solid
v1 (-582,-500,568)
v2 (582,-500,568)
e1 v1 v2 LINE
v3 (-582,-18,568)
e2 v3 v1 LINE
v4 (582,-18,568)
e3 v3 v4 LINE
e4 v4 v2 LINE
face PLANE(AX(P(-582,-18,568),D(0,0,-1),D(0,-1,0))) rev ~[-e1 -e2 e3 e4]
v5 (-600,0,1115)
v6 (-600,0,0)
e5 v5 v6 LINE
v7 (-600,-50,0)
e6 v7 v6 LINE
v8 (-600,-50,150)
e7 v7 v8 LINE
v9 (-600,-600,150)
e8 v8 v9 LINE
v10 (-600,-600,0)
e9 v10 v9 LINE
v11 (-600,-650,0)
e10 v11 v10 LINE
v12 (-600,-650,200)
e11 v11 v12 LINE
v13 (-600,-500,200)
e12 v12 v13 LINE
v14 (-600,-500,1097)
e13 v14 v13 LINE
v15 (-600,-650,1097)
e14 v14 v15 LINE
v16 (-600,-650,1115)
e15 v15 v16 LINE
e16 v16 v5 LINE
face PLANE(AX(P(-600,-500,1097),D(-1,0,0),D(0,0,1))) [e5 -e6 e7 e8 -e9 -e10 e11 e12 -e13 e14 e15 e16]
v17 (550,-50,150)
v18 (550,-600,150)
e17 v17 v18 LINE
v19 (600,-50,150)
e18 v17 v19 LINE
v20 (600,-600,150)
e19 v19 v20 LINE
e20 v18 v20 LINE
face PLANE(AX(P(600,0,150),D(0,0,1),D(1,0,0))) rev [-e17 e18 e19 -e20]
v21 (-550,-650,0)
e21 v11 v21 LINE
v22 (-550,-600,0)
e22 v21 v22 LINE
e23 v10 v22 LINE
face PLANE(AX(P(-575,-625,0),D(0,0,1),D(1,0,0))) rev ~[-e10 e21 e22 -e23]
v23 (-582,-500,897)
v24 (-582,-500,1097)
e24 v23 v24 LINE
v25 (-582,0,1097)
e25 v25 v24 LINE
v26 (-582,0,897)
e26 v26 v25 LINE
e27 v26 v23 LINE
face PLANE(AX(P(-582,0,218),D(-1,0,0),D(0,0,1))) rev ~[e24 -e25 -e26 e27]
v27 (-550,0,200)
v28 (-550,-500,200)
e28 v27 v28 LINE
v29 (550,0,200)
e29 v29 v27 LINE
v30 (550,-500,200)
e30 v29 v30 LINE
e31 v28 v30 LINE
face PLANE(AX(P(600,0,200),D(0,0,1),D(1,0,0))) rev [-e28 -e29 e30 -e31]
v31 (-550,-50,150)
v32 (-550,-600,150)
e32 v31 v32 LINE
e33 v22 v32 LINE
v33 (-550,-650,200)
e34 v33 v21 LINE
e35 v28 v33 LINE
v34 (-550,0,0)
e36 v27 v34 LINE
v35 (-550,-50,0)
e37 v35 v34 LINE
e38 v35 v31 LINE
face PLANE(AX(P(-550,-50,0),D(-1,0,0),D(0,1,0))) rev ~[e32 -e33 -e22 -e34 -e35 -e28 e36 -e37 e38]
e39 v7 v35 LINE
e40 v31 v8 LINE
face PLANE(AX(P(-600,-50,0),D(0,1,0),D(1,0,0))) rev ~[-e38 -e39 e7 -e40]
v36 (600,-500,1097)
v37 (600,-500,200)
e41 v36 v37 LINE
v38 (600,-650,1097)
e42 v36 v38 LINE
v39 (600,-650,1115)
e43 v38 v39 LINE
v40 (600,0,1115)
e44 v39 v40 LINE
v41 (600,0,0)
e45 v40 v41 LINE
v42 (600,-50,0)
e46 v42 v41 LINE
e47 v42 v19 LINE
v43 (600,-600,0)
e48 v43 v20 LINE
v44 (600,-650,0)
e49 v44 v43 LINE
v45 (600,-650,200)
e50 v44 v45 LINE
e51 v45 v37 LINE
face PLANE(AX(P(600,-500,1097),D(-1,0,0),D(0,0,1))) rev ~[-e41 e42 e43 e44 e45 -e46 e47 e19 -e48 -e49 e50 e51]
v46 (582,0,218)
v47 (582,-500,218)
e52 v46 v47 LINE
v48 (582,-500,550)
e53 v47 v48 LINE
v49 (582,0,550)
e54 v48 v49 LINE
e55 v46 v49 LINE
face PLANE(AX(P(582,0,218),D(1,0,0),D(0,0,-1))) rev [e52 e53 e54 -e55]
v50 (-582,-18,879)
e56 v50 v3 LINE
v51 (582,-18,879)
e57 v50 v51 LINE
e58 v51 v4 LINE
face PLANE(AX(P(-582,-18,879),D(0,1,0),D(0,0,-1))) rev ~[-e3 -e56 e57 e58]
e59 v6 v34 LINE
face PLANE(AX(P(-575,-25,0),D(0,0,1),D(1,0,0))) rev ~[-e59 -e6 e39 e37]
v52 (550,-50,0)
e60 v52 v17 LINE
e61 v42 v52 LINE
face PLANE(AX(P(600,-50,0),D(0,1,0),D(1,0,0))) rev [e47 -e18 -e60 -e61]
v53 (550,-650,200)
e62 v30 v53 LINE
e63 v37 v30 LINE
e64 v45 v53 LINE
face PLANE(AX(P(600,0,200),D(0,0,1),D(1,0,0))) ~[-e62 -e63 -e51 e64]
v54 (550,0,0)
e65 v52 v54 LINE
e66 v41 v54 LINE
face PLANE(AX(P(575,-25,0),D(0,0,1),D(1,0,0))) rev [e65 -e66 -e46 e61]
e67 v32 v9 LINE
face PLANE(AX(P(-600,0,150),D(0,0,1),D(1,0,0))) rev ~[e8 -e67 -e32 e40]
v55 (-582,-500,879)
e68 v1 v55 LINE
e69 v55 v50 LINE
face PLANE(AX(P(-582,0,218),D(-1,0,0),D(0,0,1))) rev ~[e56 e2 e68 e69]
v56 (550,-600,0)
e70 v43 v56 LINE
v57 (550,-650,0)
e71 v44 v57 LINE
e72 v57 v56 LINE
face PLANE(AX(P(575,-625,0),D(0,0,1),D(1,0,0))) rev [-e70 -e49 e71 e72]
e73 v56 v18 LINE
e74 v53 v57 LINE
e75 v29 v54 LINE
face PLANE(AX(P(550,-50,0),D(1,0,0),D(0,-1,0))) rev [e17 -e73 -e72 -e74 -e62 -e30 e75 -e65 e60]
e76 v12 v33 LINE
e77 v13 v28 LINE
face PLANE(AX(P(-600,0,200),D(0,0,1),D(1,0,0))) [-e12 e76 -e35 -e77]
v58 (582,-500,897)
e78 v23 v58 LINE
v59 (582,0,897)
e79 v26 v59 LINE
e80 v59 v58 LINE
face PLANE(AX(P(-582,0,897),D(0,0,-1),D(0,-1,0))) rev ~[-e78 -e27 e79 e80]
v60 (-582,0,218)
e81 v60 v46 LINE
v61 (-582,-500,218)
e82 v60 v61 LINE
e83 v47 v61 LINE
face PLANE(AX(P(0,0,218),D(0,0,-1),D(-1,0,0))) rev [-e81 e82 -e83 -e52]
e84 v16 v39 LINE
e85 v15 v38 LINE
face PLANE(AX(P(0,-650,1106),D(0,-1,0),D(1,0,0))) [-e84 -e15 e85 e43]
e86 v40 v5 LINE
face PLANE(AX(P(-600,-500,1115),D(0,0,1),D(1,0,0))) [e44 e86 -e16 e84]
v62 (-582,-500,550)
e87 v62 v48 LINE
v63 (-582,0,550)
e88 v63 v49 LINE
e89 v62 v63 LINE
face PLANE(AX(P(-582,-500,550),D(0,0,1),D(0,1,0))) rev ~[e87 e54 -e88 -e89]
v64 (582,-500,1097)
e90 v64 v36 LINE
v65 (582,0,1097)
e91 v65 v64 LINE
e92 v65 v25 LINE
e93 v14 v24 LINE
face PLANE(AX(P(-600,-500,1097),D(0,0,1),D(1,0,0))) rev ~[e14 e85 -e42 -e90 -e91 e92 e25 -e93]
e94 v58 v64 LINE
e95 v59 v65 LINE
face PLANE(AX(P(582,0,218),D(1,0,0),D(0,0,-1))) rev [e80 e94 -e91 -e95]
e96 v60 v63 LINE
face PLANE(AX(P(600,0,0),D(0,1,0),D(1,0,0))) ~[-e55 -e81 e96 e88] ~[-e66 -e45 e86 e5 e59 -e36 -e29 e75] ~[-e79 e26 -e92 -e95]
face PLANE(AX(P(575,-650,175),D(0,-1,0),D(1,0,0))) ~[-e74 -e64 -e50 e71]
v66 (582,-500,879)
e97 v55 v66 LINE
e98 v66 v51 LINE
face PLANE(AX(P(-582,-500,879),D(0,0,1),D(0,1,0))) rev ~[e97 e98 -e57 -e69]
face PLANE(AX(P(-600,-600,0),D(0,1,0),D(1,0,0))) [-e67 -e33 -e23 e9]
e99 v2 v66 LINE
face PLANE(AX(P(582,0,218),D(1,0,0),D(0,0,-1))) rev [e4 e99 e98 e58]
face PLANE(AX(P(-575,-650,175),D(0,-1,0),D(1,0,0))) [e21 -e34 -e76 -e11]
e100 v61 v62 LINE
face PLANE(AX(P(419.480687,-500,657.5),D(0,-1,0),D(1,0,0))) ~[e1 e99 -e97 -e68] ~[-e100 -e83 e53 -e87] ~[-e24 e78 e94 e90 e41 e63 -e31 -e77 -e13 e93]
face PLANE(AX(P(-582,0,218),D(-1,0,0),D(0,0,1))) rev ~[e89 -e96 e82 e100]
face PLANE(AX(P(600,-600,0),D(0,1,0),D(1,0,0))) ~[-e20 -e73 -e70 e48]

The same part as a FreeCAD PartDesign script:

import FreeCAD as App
import Part
import Sketcher
from FreeCAD import Vector
Q = App.Units.Quantity

doc = App.newDocument("Part")
params = doc.addObject("Spreadsheet::Sheet", "Params")
for row, (alias, value) in enumerate([
    ("sketch1_width", "600 mm"),
    ("sketch1_width2", "582 mm"),
    ("sketch1_height", "915 mm"),
    ("sketch1_height2", "18 mm"),
    ("pad1_length", "500 mm"),
    ("sketch2_width", "50 mm"),
    ("pad2_length", "650 mm"),
    ("sketch3_width", "50 mm"),
    ("pad3_length", "200 mm"),
    ("sketch4_width", "1200 mm"),
    ("sketch4_height", "18 mm"),
    ("pad4_length", "150 mm"),
    ("sketch5_width", "500 mm"),
    ("sketch5_width2", "482 mm"),
    ("sketch5_height", "18 mm"),
    ("sketch5_height2", "311 mm"),
], start=1):
    params.set(f"A{row}", alias)
    params.set(f"B{row}", "=" + value)
    params.setAlias(f"B{row}", alias)

body = doc.addObject("PartDesign::Body", "Body")

sketch1 = body.newObject("Sketcher::SketchObject", "Sketch")
sketch1.AttachmentSupport = (doc.getObject("XZ_Plane"), [""])
sketch1.MapMode = "FlatFace"
sketch1.addGeometry([
    Part.LineSegment(Vector(0, 1115, 0), Vector(-600, 1115, 0)),
    Part.LineSegment(Vector(-600, 1115, 0), Vector(-600, 200, 0)),
    Part.LineSegment(Vector(-600, 200, 0), Vector(0, 200, 0)),
    Part.LineSegment(Vector(0, 200, 0), Vector(0, 218, 0)),
    Part.LineSegment(Vector(0, 218, 0), Vector(-582, 218, 0)),
    Part.LineSegment(Vector(-582, 218, 0), Vector(-582, 1097, 0)),
    Part.LineSegment(Vector(-582, 1097, 0), Vector(0, 1097, 0)),
    Part.LineSegment(Vector(0, 1097, 0), Vector(0, 1115, 0)),
], False)
sketch1.addConstraint([
    Sketcher.Constraint("Coincident", 0, 2, 1, 1),
    Sketcher.Constraint("Coincident", 1, 2, 2, 1),
    Sketcher.Constraint("Coincident", 2, 2, 3, 1),
    Sketcher.Constraint("Coincident", 3, 2, 4, 1),
    Sketcher.Constraint("Coincident", 4, 2, 5, 1),
    Sketcher.Constraint("Coincident", 5, 2, 6, 1),
    Sketcher.Constraint("Coincident", 6, 2, 7, 1),
    Sketcher.Constraint("Coincident", 7, 2, 0, 1),
    Sketcher.Constraint("Horizontal", 0),
    Sketcher.Constraint("Vertical", 1),
    Sketcher.Constraint("Horizontal", 2),
    Sketcher.Constraint("Vertical", 3),
    Sketcher.Constraint("Horizontal", 4),
    Sketcher.Constraint("Vertical", 5),
    Sketcher.Constraint("Horizontal", 6),
    Sketcher.Constraint("Vertical", 7),
    Sketcher.Constraint("PointOnObject", 2, 2, -2),
    Sketcher.Constraint("PointOnObject", 6, 2, -2),
    Sketcher.Constraint("Equal", 3, 7),
    Sketcher.Constraint("DistanceX", 0, 2, 0, 1, Q("600 mm")),
    Sketcher.Constraint("DistanceX", 4, 2, 4, 1, Q("582 mm")),
    Sketcher.Constraint("DistanceY", 1, 2, 1, 1, Q("915 mm")),
    Sketcher.Constraint("DistanceY", 3, 1, 3, 2, Q("18 mm")),
    Sketcher.Constraint("DistanceY", -1, 1, 0, 2, Q("1115 mm")),
])
sketch1.setExpression("Constraints[19]", "Params.sketch1_width")
sketch1.setExpression("Constraints[20]", "Params.sketch1_width2")
sketch1.setExpression("Constraints[21]", "Params.sketch1_height")
sketch1.setExpression("Constraints[22]", "Params.sketch1_height2")
pad1 = body.newObject("PartDesign::Pad", "Pad")
pad1.Profile = sketch1
pad1.setExpression("Length", "Params.pad1_length")

sketch2 = body.newObject("Sketcher::SketchObject", "Sketch001")
sketch2.AttachmentSupport = (doc.getObject("XZ_Plane"), [""])
sketch2.MapMode = "FlatFace"
sketch2.addGeometry([
    Part.LineSegment(Vector(-600, 200, 0), Vector(-600, 150, 0)),
    Part.LineSegment(Vector(-600, 150, 0), Vector(-550, 150, 0)),
    Part.LineSegment(Vector(-550, 150, 0), Vector(-550, 200, 0)),
    Part.LineSegment(Vector(-550, 200, 0), Vector(-600, 200, 0)),
], False)
sketch2.addConstraint([
    Sketcher.Constraint("Coincident", 0, 2, 1, 1),
    Sketcher.Constraint("Coincident", 1, 2, 2, 1),
    Sketcher.Constraint("Coincident", 2, 2, 3, 1),
    Sketcher.Constraint("Coincident", 3, 2, 0, 1),
    Sketcher.Constraint("Vertical", 0),
    Sketcher.Constraint("Horizontal", 1),
    Sketcher.Constraint("Vertical", 2),
    Sketcher.Constraint("Horizontal", 3),
    Sketcher.Constraint("Equal", 3, 0),
    Sketcher.Constraint("DistanceX", 1, 1, 1, 2, Q("50 mm")),
    Sketcher.Constraint("DistanceX", 0, 2, -1, 1, Q("600 mm")),
    Sketcher.Constraint("DistanceY", -1, 1, 0, 2, Q("150 mm")),
])
sketch2.setExpression("Constraints[9]", "Params.sketch2_width")
pad2 = body.newObject("PartDesign::Pad", "Pad001")
pad2.Profile = sketch2
pad2.setExpression("Length", "Params.pad2_length")

sketch3 = body.newObject("Sketcher::SketchObject", "Sketch002")
sketch3.AttachmentSupport = (doc.getObject("XY_Plane"), [""])
sketch3.MapMode = "FlatFace"
sketch3.addGeometry([
    Part.LineSegment(Vector(-600, 0, 0), Vector(-600, -50, 0)),
    Part.LineSegment(Vector(-600, -50, 0), Vector(-550, -50, 0)),
    Part.LineSegment(Vector(-550, -50, 0), Vector(-550, 0, 0)),
    Part.LineSegment(Vector(-550, 0, 0), Vector(-600, 0, 0)),
    Part.LineSegment(Vector(-600, -600, 0), Vector(-600, -650, 0)),
    Part.LineSegment(Vector(-600, -650, 0), Vector(-550, -650, 0)),
    Part.LineSegment(Vector(-550, -650, 0), Vector(-550, -600, 0)),
    Part.LineSegment(Vector(-550, -600, 0), Vector(-600, -600, 0)),
], False)
sketch3.addConstraint([
    Sketcher.Constraint("Coincident", 0, 2, 1, 1),
    Sketcher.Constraint("Coincident", 1, 2, 2, 1),
    Sketcher.Constraint("Coincident", 2, 2, 3, 1),
    Sketcher.Constraint("Coincident", 3, 2, 0, 1),
    Sketcher.Constraint("Coincident", 4, 2, 5, 1),
    Sketcher.Constraint("Coincident", 5, 2, 6, 1),
    Sketcher.Constraint("Coincident", 6, 2, 7, 1),
    Sketcher.Constraint("Coincident", 7, 2, 4, 1),
    Sketcher.Constraint("Vertical", 0),
    Sketcher.Constraint("Horizontal", 1),
    Sketcher.Constraint("Vertical", 2),
    Sketcher.Constraint("Horizontal", 3),
    Sketcher.Constraint("Vertical", 4),
    Sketcher.Constraint("Horizontal", 5),
    Sketcher.Constraint("Vertical", 6),
    Sketcher.Constraint("Horizontal", 7),
    Sketcher.Constraint("PointOnObject", 2, 2, -1),
    Sketcher.Constraint("Vertical", 3, 2, 4, 2),
    Sketcher.Constraint("Vertical", 2, 2, 5, 2),
    Sketcher.Constraint("Equal", 7, 0),
    Sketcher.Constraint("Equal", 2, 4),
    Sketcher.Constraint("DistanceX", 1, 1, 1, 2, Q("50 mm")),
    Sketcher.Constraint("DistanceX", 0, 2, -1, 1, Q("600 mm")),
    Sketcher.Constraint("DistanceY", 4, 2, -1, 1, Q("650 mm")),
])
sketch3.setExpression("Constraints[21]", "Params.sketch3_width")
pad3 = body.newObject("PartDesign::Pad", "Pad002")
pad3.Profile = sketch3
pad3.setExpression("Length", "Params.pad3_length")
body2 = doc.addObject("PartDesign::Body", "Body001")
doc.recompute()

body2.BaseFeature = body
doc.recompute()

mirroring = doc.addObject("Part::Mirroring", "Mirroring")
mirroring.Source = body
mirroring.Base = Vector(0, 0, 0)
mirroring.Normal = Vector(1, 0, 0)
body3 = doc.addObject("PartDesign::Body", "Body002")
body3.BaseFeature = mirroring
boolean = body2.newObject("PartDesign::Boolean", "Boolean")
boolean.Type = "Fuse"
boolean.addObjects([body3])
doc.recompute()

sketch4 = body2.newObject("Sketcher::SketchObject", "Sketch003")
sketch4.AttachmentSupport = (doc.getObject("XZ_Plane001"), [""])
sketch4.MapMode = "FlatFace"
sketch4.AttachmentOffset = App.Placement(Vector(0, 0, 500), App.Rotation())
sketch4.addGeometry([
    Part.LineSegment(Vector(-600, 1115, 0), Vector(-600, 1097, 0)),
    Part.LineSegment(Vector(-600, 1097, 0), Vector(600, 1097, 0)),
    Part.LineSegment(Vector(600, 1097, 0), Vector(600, 1115, 0)),
    Part.LineSegment(Vector(600, 1115, 0), Vector(-600, 1115, 0)),
], False)
sketch4.addConstraint([
    Sketcher.Constraint("Coincident", 0, 2, 1, 1),
    Sketcher.Constraint("Coincident", 1, 2, 2, 1),
    Sketcher.Constraint("Coincident", 2, 2, 3, 1),
    Sketcher.Constraint("Coincident", 3, 2, 0, 1),
    Sketcher.Constraint("Vertical", 0),
    Sketcher.Constraint("Horizontal", 1),
    Sketcher.Constraint("Vertical", 2),
    Sketcher.Constraint("Horizontal", 3),
    Sketcher.Constraint("DistanceX", 1, 1, 1, 2, Q("1200 mm")),
    Sketcher.Constraint("DistanceY", 0, 2, 0, 1, Q("18 mm")),
    Sketcher.Constraint("DistanceX", 0, 2, -1, 1, Q("600 mm")),
    Sketcher.Constraint("DistanceY", -1, 1, 0, 2, Q("1097 mm")),
])
sketch4.setExpression("Constraints[8]", "Params.sketch4_width")
sketch4.setExpression("Constraints[9]", "Params.sketch4_height")
pad4 = body2.newObject("PartDesign::Pad", "Pad003")
pad4.Profile = sketch4
pad4.setExpression("Length", "Params.pad4_length")

sketch5 = body2.newObject("Sketcher::SketchObject", "Sketch004")
sketch5.AttachmentSupport = (doc.getObject("YZ_Plane001"), [""])
sketch5.MapMode = "FlatFace"
sketch5.AttachmentOffset = App.Placement(Vector(0, 0, -582), App.Rotation())
sketch5.addGeometry([
    Part.LineSegment(Vector(0, 897, 0), Vector(-500, 897, 0)),
    Part.LineSegment(Vector(-500, 897, 0), Vector(-500, 879, 0)),
    Part.LineSegment(Vector(-500, 879, 0), Vector(-18, 879, 0)),
    Part.LineSegment(Vector(-18, 879, 0), Vector(-18, 568, 0)),
    Part.LineSegment(Vector(-18, 568, 0), Vector(-500, 568, 0)),
    Part.LineSegment(Vector(-500, 568, 0), Vector(-500, 550, 0)),
    Part.LineSegment(Vector(-500, 550, 0), Vector(0, 550, 0)),
    Part.LineSegment(Vector(0, 550, 0), Vector(0, 897, 0)),
], False)
sketch5.addConstraint([
    Sketcher.Constraint("Coincident", 0, 2, 1, 1),
    Sketcher.Constraint("Coincident", 1, 2, 2, 1),
    Sketcher.Constraint("Coincident", 2, 2, 3, 1),
    Sketcher.Constraint("Coincident", 3, 2, 4, 1),
    Sketcher.Constraint("Coincident", 4, 2, 5, 1),
    Sketcher.Constraint("Coincident", 5, 2, 6, 1),
    Sketcher.Constraint("Coincident", 6, 2, 7, 1),
    Sketcher.Constraint("Coincident", 7, 2, 0, 1),
    Sketcher.Constraint("Horizontal", 0),
    Sketcher.Constraint("Vertical", 1),
    Sketcher.Constraint("Horizontal", 2),
    Sketcher.Constraint("Vertical", 3),
    Sketcher.Constraint("Horizontal", 4),
    Sketcher.Constraint("Vertical", 5),
    Sketcher.Constraint("Horizontal", 6),
    Sketcher.Constraint("Vertical", 7),
    Sketcher.Constraint("PointOnObject", 6, 2, -2),
    Sketcher.Constraint("Vertical", 1, 2, 4, 2),
    Sketcher.Constraint("Equal", 1, 5),
    Sketcher.Constraint("DistanceX", 0, 2, 0, 1, Q("500 mm")),
    Sketcher.Constraint("DistanceX", 2, 1, 2, 2, Q("482 mm")),
    Sketcher.Constraint("DistanceY", 1, 2, 1, 1, Q("18 mm")),
    Sketcher.Constraint("DistanceY", 3, 2, 3, 1, Q("311 mm")),
    Sketcher.Constraint("DistanceY", -1, 1, 0, 2, Q("897 mm")),
])
sketch5.setExpression("Constraints[19]", "Params.sketch5_width")
sketch5.setExpression("Constraints[20]", "Params.sketch5_width2")
sketch5.setExpression("Constraints[21]", "Params.sketch5_height")
sketch5.setExpression("Constraints[22]", "Params.sketch5_height2")
pad5 = body2.newObject("PartDesign::Pad", "Pad004")
pad5.Profile = sketch5
pad5.Type = "UpToLast"
mirroring.Visibility = False

doc.recompute()
